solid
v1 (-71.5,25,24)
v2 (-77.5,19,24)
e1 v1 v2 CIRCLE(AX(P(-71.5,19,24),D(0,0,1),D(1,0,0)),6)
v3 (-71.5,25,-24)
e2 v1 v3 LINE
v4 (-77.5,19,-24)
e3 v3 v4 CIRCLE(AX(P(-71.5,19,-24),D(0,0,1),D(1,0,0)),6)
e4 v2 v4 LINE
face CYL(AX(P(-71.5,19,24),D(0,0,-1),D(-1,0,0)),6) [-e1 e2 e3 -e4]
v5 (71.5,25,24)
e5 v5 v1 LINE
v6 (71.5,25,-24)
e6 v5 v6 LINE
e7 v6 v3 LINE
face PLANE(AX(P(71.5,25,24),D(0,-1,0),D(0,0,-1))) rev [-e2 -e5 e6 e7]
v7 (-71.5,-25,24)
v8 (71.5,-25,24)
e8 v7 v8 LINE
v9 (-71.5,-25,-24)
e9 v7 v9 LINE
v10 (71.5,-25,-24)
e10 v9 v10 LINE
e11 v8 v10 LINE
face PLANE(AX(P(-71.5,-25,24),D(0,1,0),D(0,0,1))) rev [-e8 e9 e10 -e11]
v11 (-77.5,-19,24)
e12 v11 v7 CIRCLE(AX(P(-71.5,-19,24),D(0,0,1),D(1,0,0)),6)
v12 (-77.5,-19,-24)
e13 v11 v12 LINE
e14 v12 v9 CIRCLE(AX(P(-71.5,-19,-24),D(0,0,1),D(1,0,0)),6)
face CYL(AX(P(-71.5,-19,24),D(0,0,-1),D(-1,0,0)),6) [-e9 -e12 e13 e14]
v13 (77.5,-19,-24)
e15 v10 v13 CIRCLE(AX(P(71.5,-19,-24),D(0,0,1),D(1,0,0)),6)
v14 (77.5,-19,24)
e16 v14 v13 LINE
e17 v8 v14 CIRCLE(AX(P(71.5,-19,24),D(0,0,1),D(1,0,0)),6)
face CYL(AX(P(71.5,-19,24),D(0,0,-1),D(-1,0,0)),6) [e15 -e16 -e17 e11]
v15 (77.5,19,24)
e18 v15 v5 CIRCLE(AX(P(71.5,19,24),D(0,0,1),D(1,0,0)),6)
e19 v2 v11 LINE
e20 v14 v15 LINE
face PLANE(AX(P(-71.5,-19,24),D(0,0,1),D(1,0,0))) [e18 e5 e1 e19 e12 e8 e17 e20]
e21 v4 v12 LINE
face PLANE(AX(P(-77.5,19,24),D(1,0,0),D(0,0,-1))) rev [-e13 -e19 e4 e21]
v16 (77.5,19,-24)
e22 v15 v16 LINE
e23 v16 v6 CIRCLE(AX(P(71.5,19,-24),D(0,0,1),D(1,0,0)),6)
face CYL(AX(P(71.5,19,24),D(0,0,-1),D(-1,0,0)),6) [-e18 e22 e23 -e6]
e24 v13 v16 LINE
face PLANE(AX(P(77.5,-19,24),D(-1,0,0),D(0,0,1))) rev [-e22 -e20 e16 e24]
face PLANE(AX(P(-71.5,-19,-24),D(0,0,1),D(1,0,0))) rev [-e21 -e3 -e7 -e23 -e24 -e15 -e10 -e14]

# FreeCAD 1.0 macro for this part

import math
import FreeCAD as App
import Part
import Sketcher

doc = App.newDocument("Part")
body = doc.addObject("PartDesign::Body", "Body")

sketch1 = doc.addObject("Sketcher::SketchObject", "Sketch")
body.addObject(sketch1)
sketch1.AttachmentSupport = (doc.XY_Plane, [""])
sketch1.MapMode = "FlatFace"
sketch1.addGeometry([
    Part.LineSegment(App.Vector(-72, -25, 0), App.Vector(72, -25, 0)),
    Part.ArcOfCircle(Part.Circle(App.Vector(72, -19, 0), App.Vector(0, 0, 1), 6), math.radians(-90), math.radians(0)),
    Part.LineSegment(App.Vector(78, -19, 0), App.Vector(78, 19, 0)),
    Part.ArcOfCircle(Part.Circle(App.Vector(72, 19, 0), App.Vector(0, 0, 1), 6), math.radians(0), math.radians(90)),
    Part.LineSegment(App.Vector(72, 25, 0), App.Vector(-72, 25, 0)),
    Part.ArcOfCircle(Part.Circle(App.Vector(-72, 19, 0), App.Vector(0, 0, 1), 6), math.radians(90), math.radians(180)),
    Part.LineSegment(App.Vector(-78, 19, 0), App.Vector(-78, -19, 0)),
    Part.ArcOfCircle(Part.Circle(App.Vector(-72, -19, 0), App.Vector(0, 0, 1), 6), math.radians(180), math.radians(270)),
], False)
sketch1.addConstraint([
    Sketcher.Constraint("Tangent", 0, 2, 1, 1),
    Sketcher.Constraint("Tangent", 1, 2, 2, 1),
    Sketcher.Constraint("Tangent", 2, 2, 3, 1),
    Sketcher.Constraint("Tangent", 3, 2, 4, 1),
    Sketcher.Constraint("Tangent", 4, 2, 5, 1),
    Sketcher.Constraint("Tangent", 5, 2, 6, 1),
    Sketcher.Constraint("Tangent", 6, 2, 7, 1),
    Sketcher.Constraint("Tangent", 7, 2, 0, 1),
    Sketcher.Constraint("Horizontal", 0),
    Sketcher.Constraint("Vertical", 2),
    Sketcher.Constraint("Horizontal", 4),
    Sketcher.Constraint("Vertical", 6),
    Sketcher.Constraint("Equal", 1, 3),
    Sketcher.Constraint("Equal", 3, 5),
    Sketcher.Constraint("Equal", 5, 7),
    Sketcher.Constraint("Symmetric", 1, 3, 5, 3, -1, 1),
    Sketcher.Constraint("Radius", 1, 6.0),
    Sketcher.Constraint("DistanceX", 0, 1, 0, 2, 143.0),
    Sketcher.Constraint("DistanceY", 2, 1, 2, 2, 38.0),
])
pad1 = doc.addObject("PartDesign::Pad", "Pad")
body.addObject(pad1)
pad1.Profile = sketch1
pad1.Length = 48
pad1.Midplane = True

doc.recompute()
